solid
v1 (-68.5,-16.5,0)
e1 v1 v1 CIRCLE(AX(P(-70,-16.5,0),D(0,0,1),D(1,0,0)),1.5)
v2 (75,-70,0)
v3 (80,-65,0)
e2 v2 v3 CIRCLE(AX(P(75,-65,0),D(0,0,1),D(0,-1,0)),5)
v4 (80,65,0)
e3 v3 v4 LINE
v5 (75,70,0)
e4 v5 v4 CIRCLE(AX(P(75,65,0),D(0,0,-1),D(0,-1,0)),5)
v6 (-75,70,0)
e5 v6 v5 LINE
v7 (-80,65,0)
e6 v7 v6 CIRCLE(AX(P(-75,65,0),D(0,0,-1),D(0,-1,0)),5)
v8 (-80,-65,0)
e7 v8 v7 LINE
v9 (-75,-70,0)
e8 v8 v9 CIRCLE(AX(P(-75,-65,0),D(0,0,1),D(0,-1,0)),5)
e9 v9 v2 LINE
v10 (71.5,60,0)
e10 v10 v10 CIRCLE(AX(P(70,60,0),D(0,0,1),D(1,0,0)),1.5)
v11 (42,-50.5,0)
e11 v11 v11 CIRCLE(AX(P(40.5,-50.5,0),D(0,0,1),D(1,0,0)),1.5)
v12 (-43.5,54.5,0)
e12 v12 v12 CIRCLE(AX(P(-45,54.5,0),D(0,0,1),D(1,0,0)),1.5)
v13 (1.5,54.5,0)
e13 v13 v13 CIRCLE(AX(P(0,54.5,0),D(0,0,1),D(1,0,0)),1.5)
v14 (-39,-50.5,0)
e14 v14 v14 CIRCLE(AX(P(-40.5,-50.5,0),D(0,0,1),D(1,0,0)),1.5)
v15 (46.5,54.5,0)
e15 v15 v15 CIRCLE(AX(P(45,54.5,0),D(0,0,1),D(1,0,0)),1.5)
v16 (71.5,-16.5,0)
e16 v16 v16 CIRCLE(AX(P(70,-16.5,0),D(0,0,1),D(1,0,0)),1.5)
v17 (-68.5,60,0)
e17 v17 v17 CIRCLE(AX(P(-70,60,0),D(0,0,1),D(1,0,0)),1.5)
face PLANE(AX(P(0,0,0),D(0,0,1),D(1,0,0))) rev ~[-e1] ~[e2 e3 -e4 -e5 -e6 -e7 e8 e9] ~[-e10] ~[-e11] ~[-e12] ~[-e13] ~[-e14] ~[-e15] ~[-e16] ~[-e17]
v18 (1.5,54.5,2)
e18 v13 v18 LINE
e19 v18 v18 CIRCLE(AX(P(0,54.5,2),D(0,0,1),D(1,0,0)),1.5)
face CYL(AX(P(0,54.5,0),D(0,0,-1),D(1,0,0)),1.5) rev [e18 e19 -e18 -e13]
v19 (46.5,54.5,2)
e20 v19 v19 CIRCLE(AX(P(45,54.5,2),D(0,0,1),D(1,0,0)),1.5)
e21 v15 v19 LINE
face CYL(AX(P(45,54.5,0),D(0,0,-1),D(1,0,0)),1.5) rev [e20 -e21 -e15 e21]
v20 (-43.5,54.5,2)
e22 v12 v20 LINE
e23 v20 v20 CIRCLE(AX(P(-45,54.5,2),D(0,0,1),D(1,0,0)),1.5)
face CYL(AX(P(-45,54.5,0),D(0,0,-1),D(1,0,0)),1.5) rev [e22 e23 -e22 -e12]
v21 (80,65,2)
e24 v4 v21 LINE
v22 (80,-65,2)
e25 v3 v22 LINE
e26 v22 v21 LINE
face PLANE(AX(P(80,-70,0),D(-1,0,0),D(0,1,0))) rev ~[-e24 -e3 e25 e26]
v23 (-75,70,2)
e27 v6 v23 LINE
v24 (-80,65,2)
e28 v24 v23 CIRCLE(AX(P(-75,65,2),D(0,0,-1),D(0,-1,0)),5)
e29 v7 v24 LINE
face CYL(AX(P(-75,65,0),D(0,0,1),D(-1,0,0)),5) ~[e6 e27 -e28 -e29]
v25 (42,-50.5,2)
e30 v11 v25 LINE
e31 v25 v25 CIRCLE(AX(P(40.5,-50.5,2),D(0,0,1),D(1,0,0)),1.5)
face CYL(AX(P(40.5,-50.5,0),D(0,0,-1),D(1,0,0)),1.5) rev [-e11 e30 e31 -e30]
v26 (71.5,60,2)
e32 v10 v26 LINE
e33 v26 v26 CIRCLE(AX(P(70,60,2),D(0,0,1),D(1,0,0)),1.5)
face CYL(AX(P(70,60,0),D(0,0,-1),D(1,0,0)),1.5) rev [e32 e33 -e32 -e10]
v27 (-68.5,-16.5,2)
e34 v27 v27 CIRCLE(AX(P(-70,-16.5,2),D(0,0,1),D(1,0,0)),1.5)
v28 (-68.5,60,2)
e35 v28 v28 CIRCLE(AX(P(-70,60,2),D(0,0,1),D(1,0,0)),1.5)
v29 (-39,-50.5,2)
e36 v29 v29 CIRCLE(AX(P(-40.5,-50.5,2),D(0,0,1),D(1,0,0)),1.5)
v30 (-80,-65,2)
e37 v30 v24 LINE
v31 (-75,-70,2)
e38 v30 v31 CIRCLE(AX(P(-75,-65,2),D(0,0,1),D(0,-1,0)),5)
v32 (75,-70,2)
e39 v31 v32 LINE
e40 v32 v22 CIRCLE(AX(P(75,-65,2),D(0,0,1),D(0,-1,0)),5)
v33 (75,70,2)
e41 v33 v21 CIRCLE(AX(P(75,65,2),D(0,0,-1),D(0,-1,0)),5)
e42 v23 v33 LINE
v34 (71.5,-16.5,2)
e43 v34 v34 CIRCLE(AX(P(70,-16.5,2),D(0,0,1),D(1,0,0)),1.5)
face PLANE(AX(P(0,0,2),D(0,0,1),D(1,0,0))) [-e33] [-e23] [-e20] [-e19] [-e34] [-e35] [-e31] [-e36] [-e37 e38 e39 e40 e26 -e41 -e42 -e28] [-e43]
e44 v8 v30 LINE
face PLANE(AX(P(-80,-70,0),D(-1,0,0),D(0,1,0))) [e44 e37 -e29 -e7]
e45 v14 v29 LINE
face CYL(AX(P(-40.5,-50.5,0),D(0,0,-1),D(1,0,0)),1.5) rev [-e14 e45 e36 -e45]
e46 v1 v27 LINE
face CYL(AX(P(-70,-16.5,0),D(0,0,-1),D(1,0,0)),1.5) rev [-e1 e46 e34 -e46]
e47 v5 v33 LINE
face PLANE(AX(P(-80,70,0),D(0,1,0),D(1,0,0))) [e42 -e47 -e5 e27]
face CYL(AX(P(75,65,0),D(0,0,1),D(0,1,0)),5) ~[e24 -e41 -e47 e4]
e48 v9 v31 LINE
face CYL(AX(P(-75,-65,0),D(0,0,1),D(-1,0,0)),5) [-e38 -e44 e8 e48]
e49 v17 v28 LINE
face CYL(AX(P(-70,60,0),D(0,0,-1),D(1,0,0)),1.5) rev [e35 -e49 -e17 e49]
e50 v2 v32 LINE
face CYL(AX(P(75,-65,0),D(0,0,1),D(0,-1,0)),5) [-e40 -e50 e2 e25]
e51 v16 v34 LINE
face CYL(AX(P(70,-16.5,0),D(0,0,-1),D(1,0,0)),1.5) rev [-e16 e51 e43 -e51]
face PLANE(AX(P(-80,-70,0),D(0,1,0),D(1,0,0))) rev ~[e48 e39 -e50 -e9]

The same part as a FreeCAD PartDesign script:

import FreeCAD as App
import Part
import Sketcher


def edges_at(feature, points):
    """Names of the edges that pass closest to the given points."""
    edges = feature.Shape.Edges
    near = lambda p: min(range(len(edges)), key=lambda i: edges[i].distToShape(Part.Vertex(*p))[0])
    return sorted({f"Edge{near(p) + 1}" for p in points})


def add_polygon(sketch, points):
    """Adds a closed chain of lines whose ends are joined by coincident constraints."""
    first, n = sketch.GeometryCount, len(points)
    for a, b in zip(points, points[1:] + points[:1]):
        sketch.addGeometry(Part.LineSegment(App.Vector(*a, 0), App.Vector(*b, 0)), False)
    for i in range(n):
        sketch.addConstraint(Sketcher.Constraint("Coincident", first + i, 2, first + (i + 1) % n, 1))

doc = App.newDocument("Part")
body = doc.addObject("PartDesign::Body", "Body")

# Sketch on XY plane
sketch1 = doc.addObject("Sketcher::SketchObject", "Sketch")
body.addObject(sketch1)
sketch1.AttachmentSupport = (doc.XY_Plane, [""])
sketch1.MapMode = "FlatFace"
add_polygon(sketch1, [(-80, 70), (-80, -70), (80, -70), (80, 70)])  # lines 0-3
sketch1.addGeometry(Part.Circle(App.Vector(-40.5, -50.5, 0), App.Vector(0, 0, 1), 1.5), False)  # 4
sketch1.addGeometry(Part.Circle(App.Vector(-70, -16.5, 0), App.Vector(0, 0, 1), 1.5), False)  # 5
sketch1.addGeometry(Part.Circle(App.Vector(40.5, -50.5, 0), App.Vector(0, 0, 1), 1.5), False)  # 6
sketch1.addGeometry(Part.Circle(App.Vector(70, -16.5, 0), App.Vector(0, 0, 1), 1.5), False)  # 7
sketch1.addGeometry(Part.Circle(App.Vector(-70, 60, 0), App.Vector(0, 0, 1), 1.5), False)  # 8
sketch1.addGeometry(Part.Circle(App.Vector(-45, 54.5, 0), App.Vector(0, 0, 1), 1.5), False)  # 9
sketch1.addGeometry(Part.Circle(App.Vector(0, 54.5, 0), App.Vector(0, 0, 1), 1.5), False)  # 10
sketch1.addGeometry(Part.Circle(App.Vector(45, 54.5, 0), App.Vector(0, 0, 1), 1.5), False)  # 11
sketch1.addGeometry(Part.Circle(App.Vector(70, 60, 0), App.Vector(0, 0, 1), 1.5), False)  # 12
sketch1.addConstraint([
    Sketcher.Constraint("Vertical", 0),
    Sketcher.Constraint("Horizontal", 1),
    Sketcher.Constraint("Vertical", 2),
    Sketcher.Constraint("Horizontal", 3),
    Sketcher.Constraint("Equal", 4, 5),
    Sketcher.Constraint("Equal", 5, 6),
    Sketcher.Constraint("Equal", 6, 7),
    Sketcher.Constraint("Equal", 7, 8),
    Sketcher.Constraint("Equal", 8, 9),
    Sketcher.Constraint("Equal", 9, 10),
    Sketcher.Constraint("Equal", 10, 11),
    Sketcher.Constraint("Equal", 11, 12),
    Sketcher.Constraint("Symmetric", 0, 2, 2, 2, -1, 1),
    Sketcher.Constraint("Symmetric", 4, 3, 6, 3, -2),
    Sketcher.Constraint("Symmetric", 5, 3, 7, 3, -2),
    Sketcher.Constraint("Symmetric", 9, 3, 11, 3, -2),
    Sketcher.Constraint("Symmetric", 8, 3, 12, 3, -2),
    Sketcher.Constraint("PointOnObject", 10, 3, -2),
    Sketcher.Constraint("Horizontal", 9, 3, 10, 3),
    Sketcher.Constraint("Vertical", 5, 3, 8, 3),
    Sketcher.Constraint("Diameter", 4, 3.0),
    Sketcher.Constraint("DistanceX", 1, 1, 1, 2, 160.0),
    Sketcher.Constraint("DistanceY", 0, 2, 0, 1, 140.0),
    Sketcher.Constraint("DistanceX", 5, 3, -1, 1, 70.0),
    Sketcher.Constraint("DistanceY", -1, 1, 8, 3, 60.0),
    Sketcher.Constraint("DistanceX", 9, 3, -1, 1, 45.0),
    Sketcher.Constraint("DistanceY", 4, 3, 5, 3, 34.0),
    Sketcher.Constraint("DistanceX", 4, 3, 6, 3, 81.0),
    Sketcher.Constraint("DistanceY", 5, 3, 9, 3, 71.0),
    Sketcher.Constraint("DistanceY", 4, 3, -1, 1, 50.5),
])
pad1 = doc.addObject("PartDesign::Pad", "Pad")
body.addObject(pad1)
pad1.Profile = sketch1
pad1.Length = 2
doc.recompute()

fillet = doc.addObject("PartDesign::Fillet", "Fillet")
body.addObject(fillet)
fillet.Base = (pad1, edges_at(pad1, [
    (80, -70, 1),
    (-80, -70, 1),
    (-80, 70, 1),
    (80, 70, 1),
]))
fillet.Radius = 5

doc.recompute()
